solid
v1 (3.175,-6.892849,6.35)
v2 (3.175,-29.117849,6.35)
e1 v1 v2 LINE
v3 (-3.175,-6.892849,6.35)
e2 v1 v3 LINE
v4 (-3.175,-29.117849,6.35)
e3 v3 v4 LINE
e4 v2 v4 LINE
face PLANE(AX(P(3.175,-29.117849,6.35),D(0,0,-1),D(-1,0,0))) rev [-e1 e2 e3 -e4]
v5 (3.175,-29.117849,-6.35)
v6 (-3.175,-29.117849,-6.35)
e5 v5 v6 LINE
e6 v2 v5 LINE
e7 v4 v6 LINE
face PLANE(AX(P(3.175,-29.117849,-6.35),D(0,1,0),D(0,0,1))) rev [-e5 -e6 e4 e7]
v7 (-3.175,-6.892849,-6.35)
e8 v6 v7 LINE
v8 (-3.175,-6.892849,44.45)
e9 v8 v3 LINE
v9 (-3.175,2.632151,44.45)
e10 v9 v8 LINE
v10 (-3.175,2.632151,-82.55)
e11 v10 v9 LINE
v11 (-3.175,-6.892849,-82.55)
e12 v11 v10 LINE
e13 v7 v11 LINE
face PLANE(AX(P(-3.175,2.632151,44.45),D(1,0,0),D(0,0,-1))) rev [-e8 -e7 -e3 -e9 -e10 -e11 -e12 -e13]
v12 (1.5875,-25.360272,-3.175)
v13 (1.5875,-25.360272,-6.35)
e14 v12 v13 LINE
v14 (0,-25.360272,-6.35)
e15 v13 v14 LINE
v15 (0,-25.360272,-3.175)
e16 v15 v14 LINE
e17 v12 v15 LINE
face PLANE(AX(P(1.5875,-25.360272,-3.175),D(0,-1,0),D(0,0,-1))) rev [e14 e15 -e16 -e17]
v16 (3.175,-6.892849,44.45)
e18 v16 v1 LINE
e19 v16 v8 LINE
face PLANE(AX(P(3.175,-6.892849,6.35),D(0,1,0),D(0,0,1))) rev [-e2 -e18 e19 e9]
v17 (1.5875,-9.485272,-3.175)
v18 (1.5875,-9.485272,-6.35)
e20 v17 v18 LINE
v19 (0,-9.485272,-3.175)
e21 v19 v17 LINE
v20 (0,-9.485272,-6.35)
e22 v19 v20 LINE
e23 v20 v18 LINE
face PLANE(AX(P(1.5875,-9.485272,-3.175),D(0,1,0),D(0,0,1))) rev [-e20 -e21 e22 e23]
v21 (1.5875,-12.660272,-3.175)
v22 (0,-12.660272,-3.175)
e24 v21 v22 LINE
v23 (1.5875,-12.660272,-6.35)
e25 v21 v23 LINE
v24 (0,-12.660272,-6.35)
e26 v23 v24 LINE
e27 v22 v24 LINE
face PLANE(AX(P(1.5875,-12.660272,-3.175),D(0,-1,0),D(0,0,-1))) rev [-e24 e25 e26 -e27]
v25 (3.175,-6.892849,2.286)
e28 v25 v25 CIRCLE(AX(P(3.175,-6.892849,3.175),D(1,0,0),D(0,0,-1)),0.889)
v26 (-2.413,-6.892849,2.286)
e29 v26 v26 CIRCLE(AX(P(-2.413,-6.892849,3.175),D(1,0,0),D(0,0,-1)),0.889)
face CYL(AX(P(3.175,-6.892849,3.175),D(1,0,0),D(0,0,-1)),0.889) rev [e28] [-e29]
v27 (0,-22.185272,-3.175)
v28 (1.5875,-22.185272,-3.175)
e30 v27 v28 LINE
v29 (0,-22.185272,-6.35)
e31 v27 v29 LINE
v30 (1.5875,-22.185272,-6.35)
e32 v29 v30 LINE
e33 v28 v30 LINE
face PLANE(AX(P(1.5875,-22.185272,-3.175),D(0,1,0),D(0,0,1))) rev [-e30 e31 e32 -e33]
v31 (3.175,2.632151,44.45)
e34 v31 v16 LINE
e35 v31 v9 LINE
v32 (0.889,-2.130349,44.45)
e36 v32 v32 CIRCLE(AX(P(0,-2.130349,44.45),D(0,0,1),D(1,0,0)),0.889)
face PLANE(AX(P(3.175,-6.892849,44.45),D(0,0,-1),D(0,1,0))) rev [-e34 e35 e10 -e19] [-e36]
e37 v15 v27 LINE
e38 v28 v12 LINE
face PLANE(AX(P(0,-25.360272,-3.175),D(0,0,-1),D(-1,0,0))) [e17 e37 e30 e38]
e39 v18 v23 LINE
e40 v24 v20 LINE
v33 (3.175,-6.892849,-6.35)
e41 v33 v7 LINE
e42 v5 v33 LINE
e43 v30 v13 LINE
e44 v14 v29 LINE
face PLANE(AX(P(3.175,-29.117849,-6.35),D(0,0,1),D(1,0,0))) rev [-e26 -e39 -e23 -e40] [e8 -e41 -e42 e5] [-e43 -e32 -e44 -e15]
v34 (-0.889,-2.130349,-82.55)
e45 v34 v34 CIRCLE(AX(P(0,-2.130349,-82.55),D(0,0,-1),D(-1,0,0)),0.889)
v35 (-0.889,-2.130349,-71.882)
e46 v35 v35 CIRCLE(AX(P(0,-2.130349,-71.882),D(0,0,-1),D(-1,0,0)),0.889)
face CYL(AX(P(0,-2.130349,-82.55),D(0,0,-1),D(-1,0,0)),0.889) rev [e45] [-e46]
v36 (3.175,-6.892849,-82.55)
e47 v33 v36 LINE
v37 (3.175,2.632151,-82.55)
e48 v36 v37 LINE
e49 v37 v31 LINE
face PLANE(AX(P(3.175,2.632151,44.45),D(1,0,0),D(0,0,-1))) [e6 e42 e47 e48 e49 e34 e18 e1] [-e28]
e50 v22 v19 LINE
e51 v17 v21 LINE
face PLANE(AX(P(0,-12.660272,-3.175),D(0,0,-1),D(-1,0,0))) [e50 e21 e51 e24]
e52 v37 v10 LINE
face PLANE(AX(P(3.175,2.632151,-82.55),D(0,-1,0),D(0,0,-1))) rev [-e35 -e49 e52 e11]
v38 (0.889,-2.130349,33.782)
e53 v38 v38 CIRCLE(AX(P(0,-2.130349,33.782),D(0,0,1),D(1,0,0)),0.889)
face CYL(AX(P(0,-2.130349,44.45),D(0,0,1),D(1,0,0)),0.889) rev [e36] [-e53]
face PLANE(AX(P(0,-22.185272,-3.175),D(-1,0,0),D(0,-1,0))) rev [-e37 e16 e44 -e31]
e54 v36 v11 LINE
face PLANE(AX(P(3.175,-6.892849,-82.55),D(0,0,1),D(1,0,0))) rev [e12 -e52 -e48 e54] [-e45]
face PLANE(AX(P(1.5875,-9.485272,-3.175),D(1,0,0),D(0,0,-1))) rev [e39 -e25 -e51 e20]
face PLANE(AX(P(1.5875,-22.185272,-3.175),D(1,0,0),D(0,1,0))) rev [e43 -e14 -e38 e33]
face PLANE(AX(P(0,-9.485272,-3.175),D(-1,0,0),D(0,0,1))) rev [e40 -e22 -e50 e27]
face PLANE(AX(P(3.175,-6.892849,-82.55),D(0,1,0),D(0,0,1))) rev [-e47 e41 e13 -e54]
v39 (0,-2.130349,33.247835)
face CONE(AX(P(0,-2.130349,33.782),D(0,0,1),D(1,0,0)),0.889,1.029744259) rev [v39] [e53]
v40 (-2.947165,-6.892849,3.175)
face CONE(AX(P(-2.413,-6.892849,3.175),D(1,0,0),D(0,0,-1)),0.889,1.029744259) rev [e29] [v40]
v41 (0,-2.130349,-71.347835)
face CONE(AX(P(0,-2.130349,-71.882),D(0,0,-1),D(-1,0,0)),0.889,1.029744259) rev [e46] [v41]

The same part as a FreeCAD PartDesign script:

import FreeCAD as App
import Part
import Sketcher
from FreeCAD import Vector
Q = App.Units.Quantity


def add_polygon(sketch, points):
    """Adds a closed chain of lines whose ends are joined by coincident constraints."""
    first, n = sketch.GeometryCount, len(points)
    for a, b in zip(points, points[1:] + points[:1]):
        sketch.addGeometry(Part.LineSegment(App.Vector(*a, 0), App.Vector(*b, 0)), False)
    for i in range(n):
        sketch.addConstraint(Sketcher.Constraint("Coincident", first + i, 2, first + (i + 1) % n, 1))

doc = App.newDocument("Part")
body = doc.addObject("PartDesign::Body", "Body")

# Sketch on YZ plane
sketch1 = body.newObject("Sketcher::SketchObject", "Sketch")
sketch1.AttachmentSupport = (doc.getObject("YZ_Plane"), [""])
sketch1.MapMode = "FlatFace"
add_polygon(sketch1, [(-6.892849, 44.45), (-6.892849, 6.35), (-29.117849, 6.35), (-29.117849, -6.35), (-6.892849, -6.35), (-6.892849, -82.55), (2.632151, -82.55), (2.632151, 44.45)])  # lines 0-7
sketch1.addConstraint(Sketcher.Constraint("Vertical", 0))
sketch1.addConstraint(Sketcher.Constraint("Horizontal", 1))
sketch1.addConstraint(Sketcher.Constraint("Vertical", 2))
sketch1.addConstraint(Sketcher.Constraint("Horizontal", 3))
sketch1.addConstraint(Sketcher.Constraint("Vertical", 4))
sketch1.addConstraint(Sketcher.Constraint("Horizontal", 5))
sketch1.addConstraint(Sketcher.Constraint("Vertical", 6))
sketch1.addConstraint(Sketcher.Constraint("Horizontal", 7))
sketch1.addConstraint(Sketcher.Constraint("Symmetric", 0, 2, 3, 2, -1))
sketch1.addConstraint(Sketcher.Constraint("DistanceY", 4, 2, 4, 1, Q("3 in")))
sketch1.addConstraint(Sketcher.Constraint("DistanceY", 6, 1, 6, 2, Q("5 in")))
sketch1.addConstraint(Sketcher.Constraint("DistanceY", 0, 2, 0, 1, Q("1.5 in")))
sketch1.addConstraint(Sketcher.Constraint("DistanceX", 1, 2, 1, 1, Q("0.875 in")))
sketch1.addConstraint(Sketcher.Constraint("DistanceX", 5, 1, 5, 2, Q("0.375 in")))
sketch1.addConstraint(Sketcher.Constraint("DistanceX", 0, 2, -1, 1, Q("6.892849 mm")))
pad1 = body.newObject("PartDesign::Pad", "Pad")
pad1.Profile = sketch1
pad1.Length = Q("0.25 in")
pad1.Midplane = True

# Sketch on XY plane
sketch2 = body.newObject("Sketcher::SketchObject", "Sketch001")
sketch2.AttachmentSupport = (doc.getObject("XY_Plane"), [""])
sketch2.MapMode = "FlatFace"
sketch2.AttachmentOffset = App.Placement(Vector(0, 0, -0.25 * 25.4), App.Rotation())
add_polygon(sketch2, [(1.5875, -9.485272), (1.5875, -12.660272), (0, -12.660272), (0, -9.485272)])  # lines 0-3
add_polygon(sketch2, [(1.5875, -22.185272), (1.5875, -25.360272), (0, -25.360272), (0, -22.185272)])  # lines 4-7
sketch2.addConstraint(Sketcher.Constraint("Vertical", 0))
sketch2.addConstraint(Sketcher.Constraint("Horizontal", 1))
sketch2.addConstraint(Sketcher.Constraint("Vertical", 2))
sketch2.addConstraint(Sketcher.Constraint("Horizontal", 3))
sketch2.addConstraint(Sketcher.Constraint("Vertical", 4))
sketch2.addConstraint(Sketcher.Constraint("Horizontal", 5))
sketch2.addConstraint(Sketcher.Constraint("Vertical", 6))
sketch2.addConstraint(Sketcher.Constraint("Horizontal", 7))
sketch2.addConstraint(Sketcher.Constraint("PointOnObject", 1, 2, -2))
sketch2.addConstraint(Sketcher.Constraint("PointOnObject", 5, 2, -2))
sketch2.addConstraint(Sketcher.Constraint("Vertical", 3, 2, 4, 2))
sketch2.addConstraint(Sketcher.Constraint("Equal", 2, 4))
sketch2.addConstraint(Sketcher.Constraint("DistanceY", 4, 2, 0, 2, Q("0.5 in")))
sketch2.addConstraint(Sketcher.Constraint("DistanceX", 1, 2, 1, 1, Q("0.0625 in")))
sketch2.addConstraint(Sketcher.Constraint("DistanceY", 0, 2, 0, 1, Q("0.125 in")))
sketch2.addConstraint(Sketcher.Constraint("DistanceY", 0, 2, -1, 1, Q("12.660272 mm")))
pocket1 = body.newObject("PartDesign::Pocket", "Pocket")
pocket1.Profile = sketch2
pocket1.Length = Q("0.125 in")
pocket1.Reversed = True

# Sketch on YZ plane
sketch3 = body.newObject("Sketcher::SketchObject", "Sketch002")
sketch3.AttachmentSupport = (doc.getObject("YZ_Plane"), [""])
sketch3.MapMode = "FlatFace"
sketch3.AttachmentOffset = App.Placement(Vector(0, 0, 0.125 * 25.4), App.Rotation())
sketch3.addGeometry(Part.Circle(Vector(-6.892849, 3.175, 0), Vector(0, 0, 1), 0.889), False)
sketch3.addConstraint(Sketcher.Constraint("Diameter", 0, Q("0.07 in")))
sketch3.addConstraint(Sketcher.Constraint("DistanceY", -1, 1, 0, 3, Q("0.125 in")))
sketch3.addConstraint(Sketcher.Constraint("DistanceX", 0, 3, -1, 1, Q("6.892849 mm")))
doc.recompute()
hole = body.newObject("PartDesign::Hole", "Hole")
hole.Profile = sketch3
hole.ThreadType = "None"
hole.Diameter = Q("0.07 in")
hole.DepthType = "Dimension"
hole.Depth = Q("0.22 in")
hole.DrillPoint = "Angled"
hole.DrillPointAngle = 118

# Sketch on XY plane
sketch4 = body.newObject("Sketcher::SketchObject", "Sketch003")
sketch4.AttachmentSupport = (doc.getObject("XY_Plane"), [""])
sketch4.MapMode = "FlatFace"
sketch4.AttachmentOffset = App.Placement(Vector(0, 0, 1.75 * 25.4), App.Rotation())
sketch4.addGeometry(Part.Circle(Vector(0, -2.130349, 0), Vector(0, 0, 1), 0.889), False)
sketch4.addConstraint(Sketcher.Constraint("PointOnObject", 0, 3, -2))
sketch4.addConstraint(Sketcher.Constraint("Diameter", 0, Q("0.07 in")))
sketch4.addConstraint(Sketcher.Constraint("DistanceY", 0, 3, -1, 1, Q("2.130349 mm")))
doc.recompute()
hole2 = body.newObject("PartDesign::Hole", "Hole001")
hole2.Profile = sketch4
hole2.ThreadType = "None"
hole2.Diameter = Q("0.07 in")
hole2.DepthType = "Dimension"
hole2.Depth = Q("0.42 in")
hole2.DrillPoint = "Angled"
hole2.DrillPointAngle = 118

# Sketch on XY plane
sketch5 = body.newObject("Sketcher::SketchObject", "Sketch004")
sketch5.AttachmentSupport = (doc.getObject("XY_Plane"), [""])
sketch5.MapMode = "FlatFace"
sketch5.AttachmentOffset = App.Placement(Vector(0, 0, -3.25 * 25.4), App.Rotation())
sketch5.addGeometry(Part.Circle(Vector(0, -2.130349, 0), Vector(0, 0, 1), 0.889), False)
sketch5.addConstraint(Sketcher.Constraint("PointOnObject", 0, 3, -2))
sketch5.addConstraint(Sketcher.Constraint("Diameter", 0, Q("0.07 in")))
sketch5.addConstraint(Sketcher.Constraint("DistanceY", 0, 3, -1, 1, Q("2.130349 mm")))
doc.recompute()
hole3 = body.newObject("PartDesign::Hole", "Hole002")
hole3.Profile = sketch5
hole3.ThreadType = "None"
hole3.Diameter = Q("0.07 in")
hole3.DepthType = "Dimension"
hole3.Depth = Q("0.42 in")
hole3.DrillPoint = "Angled"
hole3.DrillPointAngle = 118
hole3.Reversed = True

doc.recompute()
